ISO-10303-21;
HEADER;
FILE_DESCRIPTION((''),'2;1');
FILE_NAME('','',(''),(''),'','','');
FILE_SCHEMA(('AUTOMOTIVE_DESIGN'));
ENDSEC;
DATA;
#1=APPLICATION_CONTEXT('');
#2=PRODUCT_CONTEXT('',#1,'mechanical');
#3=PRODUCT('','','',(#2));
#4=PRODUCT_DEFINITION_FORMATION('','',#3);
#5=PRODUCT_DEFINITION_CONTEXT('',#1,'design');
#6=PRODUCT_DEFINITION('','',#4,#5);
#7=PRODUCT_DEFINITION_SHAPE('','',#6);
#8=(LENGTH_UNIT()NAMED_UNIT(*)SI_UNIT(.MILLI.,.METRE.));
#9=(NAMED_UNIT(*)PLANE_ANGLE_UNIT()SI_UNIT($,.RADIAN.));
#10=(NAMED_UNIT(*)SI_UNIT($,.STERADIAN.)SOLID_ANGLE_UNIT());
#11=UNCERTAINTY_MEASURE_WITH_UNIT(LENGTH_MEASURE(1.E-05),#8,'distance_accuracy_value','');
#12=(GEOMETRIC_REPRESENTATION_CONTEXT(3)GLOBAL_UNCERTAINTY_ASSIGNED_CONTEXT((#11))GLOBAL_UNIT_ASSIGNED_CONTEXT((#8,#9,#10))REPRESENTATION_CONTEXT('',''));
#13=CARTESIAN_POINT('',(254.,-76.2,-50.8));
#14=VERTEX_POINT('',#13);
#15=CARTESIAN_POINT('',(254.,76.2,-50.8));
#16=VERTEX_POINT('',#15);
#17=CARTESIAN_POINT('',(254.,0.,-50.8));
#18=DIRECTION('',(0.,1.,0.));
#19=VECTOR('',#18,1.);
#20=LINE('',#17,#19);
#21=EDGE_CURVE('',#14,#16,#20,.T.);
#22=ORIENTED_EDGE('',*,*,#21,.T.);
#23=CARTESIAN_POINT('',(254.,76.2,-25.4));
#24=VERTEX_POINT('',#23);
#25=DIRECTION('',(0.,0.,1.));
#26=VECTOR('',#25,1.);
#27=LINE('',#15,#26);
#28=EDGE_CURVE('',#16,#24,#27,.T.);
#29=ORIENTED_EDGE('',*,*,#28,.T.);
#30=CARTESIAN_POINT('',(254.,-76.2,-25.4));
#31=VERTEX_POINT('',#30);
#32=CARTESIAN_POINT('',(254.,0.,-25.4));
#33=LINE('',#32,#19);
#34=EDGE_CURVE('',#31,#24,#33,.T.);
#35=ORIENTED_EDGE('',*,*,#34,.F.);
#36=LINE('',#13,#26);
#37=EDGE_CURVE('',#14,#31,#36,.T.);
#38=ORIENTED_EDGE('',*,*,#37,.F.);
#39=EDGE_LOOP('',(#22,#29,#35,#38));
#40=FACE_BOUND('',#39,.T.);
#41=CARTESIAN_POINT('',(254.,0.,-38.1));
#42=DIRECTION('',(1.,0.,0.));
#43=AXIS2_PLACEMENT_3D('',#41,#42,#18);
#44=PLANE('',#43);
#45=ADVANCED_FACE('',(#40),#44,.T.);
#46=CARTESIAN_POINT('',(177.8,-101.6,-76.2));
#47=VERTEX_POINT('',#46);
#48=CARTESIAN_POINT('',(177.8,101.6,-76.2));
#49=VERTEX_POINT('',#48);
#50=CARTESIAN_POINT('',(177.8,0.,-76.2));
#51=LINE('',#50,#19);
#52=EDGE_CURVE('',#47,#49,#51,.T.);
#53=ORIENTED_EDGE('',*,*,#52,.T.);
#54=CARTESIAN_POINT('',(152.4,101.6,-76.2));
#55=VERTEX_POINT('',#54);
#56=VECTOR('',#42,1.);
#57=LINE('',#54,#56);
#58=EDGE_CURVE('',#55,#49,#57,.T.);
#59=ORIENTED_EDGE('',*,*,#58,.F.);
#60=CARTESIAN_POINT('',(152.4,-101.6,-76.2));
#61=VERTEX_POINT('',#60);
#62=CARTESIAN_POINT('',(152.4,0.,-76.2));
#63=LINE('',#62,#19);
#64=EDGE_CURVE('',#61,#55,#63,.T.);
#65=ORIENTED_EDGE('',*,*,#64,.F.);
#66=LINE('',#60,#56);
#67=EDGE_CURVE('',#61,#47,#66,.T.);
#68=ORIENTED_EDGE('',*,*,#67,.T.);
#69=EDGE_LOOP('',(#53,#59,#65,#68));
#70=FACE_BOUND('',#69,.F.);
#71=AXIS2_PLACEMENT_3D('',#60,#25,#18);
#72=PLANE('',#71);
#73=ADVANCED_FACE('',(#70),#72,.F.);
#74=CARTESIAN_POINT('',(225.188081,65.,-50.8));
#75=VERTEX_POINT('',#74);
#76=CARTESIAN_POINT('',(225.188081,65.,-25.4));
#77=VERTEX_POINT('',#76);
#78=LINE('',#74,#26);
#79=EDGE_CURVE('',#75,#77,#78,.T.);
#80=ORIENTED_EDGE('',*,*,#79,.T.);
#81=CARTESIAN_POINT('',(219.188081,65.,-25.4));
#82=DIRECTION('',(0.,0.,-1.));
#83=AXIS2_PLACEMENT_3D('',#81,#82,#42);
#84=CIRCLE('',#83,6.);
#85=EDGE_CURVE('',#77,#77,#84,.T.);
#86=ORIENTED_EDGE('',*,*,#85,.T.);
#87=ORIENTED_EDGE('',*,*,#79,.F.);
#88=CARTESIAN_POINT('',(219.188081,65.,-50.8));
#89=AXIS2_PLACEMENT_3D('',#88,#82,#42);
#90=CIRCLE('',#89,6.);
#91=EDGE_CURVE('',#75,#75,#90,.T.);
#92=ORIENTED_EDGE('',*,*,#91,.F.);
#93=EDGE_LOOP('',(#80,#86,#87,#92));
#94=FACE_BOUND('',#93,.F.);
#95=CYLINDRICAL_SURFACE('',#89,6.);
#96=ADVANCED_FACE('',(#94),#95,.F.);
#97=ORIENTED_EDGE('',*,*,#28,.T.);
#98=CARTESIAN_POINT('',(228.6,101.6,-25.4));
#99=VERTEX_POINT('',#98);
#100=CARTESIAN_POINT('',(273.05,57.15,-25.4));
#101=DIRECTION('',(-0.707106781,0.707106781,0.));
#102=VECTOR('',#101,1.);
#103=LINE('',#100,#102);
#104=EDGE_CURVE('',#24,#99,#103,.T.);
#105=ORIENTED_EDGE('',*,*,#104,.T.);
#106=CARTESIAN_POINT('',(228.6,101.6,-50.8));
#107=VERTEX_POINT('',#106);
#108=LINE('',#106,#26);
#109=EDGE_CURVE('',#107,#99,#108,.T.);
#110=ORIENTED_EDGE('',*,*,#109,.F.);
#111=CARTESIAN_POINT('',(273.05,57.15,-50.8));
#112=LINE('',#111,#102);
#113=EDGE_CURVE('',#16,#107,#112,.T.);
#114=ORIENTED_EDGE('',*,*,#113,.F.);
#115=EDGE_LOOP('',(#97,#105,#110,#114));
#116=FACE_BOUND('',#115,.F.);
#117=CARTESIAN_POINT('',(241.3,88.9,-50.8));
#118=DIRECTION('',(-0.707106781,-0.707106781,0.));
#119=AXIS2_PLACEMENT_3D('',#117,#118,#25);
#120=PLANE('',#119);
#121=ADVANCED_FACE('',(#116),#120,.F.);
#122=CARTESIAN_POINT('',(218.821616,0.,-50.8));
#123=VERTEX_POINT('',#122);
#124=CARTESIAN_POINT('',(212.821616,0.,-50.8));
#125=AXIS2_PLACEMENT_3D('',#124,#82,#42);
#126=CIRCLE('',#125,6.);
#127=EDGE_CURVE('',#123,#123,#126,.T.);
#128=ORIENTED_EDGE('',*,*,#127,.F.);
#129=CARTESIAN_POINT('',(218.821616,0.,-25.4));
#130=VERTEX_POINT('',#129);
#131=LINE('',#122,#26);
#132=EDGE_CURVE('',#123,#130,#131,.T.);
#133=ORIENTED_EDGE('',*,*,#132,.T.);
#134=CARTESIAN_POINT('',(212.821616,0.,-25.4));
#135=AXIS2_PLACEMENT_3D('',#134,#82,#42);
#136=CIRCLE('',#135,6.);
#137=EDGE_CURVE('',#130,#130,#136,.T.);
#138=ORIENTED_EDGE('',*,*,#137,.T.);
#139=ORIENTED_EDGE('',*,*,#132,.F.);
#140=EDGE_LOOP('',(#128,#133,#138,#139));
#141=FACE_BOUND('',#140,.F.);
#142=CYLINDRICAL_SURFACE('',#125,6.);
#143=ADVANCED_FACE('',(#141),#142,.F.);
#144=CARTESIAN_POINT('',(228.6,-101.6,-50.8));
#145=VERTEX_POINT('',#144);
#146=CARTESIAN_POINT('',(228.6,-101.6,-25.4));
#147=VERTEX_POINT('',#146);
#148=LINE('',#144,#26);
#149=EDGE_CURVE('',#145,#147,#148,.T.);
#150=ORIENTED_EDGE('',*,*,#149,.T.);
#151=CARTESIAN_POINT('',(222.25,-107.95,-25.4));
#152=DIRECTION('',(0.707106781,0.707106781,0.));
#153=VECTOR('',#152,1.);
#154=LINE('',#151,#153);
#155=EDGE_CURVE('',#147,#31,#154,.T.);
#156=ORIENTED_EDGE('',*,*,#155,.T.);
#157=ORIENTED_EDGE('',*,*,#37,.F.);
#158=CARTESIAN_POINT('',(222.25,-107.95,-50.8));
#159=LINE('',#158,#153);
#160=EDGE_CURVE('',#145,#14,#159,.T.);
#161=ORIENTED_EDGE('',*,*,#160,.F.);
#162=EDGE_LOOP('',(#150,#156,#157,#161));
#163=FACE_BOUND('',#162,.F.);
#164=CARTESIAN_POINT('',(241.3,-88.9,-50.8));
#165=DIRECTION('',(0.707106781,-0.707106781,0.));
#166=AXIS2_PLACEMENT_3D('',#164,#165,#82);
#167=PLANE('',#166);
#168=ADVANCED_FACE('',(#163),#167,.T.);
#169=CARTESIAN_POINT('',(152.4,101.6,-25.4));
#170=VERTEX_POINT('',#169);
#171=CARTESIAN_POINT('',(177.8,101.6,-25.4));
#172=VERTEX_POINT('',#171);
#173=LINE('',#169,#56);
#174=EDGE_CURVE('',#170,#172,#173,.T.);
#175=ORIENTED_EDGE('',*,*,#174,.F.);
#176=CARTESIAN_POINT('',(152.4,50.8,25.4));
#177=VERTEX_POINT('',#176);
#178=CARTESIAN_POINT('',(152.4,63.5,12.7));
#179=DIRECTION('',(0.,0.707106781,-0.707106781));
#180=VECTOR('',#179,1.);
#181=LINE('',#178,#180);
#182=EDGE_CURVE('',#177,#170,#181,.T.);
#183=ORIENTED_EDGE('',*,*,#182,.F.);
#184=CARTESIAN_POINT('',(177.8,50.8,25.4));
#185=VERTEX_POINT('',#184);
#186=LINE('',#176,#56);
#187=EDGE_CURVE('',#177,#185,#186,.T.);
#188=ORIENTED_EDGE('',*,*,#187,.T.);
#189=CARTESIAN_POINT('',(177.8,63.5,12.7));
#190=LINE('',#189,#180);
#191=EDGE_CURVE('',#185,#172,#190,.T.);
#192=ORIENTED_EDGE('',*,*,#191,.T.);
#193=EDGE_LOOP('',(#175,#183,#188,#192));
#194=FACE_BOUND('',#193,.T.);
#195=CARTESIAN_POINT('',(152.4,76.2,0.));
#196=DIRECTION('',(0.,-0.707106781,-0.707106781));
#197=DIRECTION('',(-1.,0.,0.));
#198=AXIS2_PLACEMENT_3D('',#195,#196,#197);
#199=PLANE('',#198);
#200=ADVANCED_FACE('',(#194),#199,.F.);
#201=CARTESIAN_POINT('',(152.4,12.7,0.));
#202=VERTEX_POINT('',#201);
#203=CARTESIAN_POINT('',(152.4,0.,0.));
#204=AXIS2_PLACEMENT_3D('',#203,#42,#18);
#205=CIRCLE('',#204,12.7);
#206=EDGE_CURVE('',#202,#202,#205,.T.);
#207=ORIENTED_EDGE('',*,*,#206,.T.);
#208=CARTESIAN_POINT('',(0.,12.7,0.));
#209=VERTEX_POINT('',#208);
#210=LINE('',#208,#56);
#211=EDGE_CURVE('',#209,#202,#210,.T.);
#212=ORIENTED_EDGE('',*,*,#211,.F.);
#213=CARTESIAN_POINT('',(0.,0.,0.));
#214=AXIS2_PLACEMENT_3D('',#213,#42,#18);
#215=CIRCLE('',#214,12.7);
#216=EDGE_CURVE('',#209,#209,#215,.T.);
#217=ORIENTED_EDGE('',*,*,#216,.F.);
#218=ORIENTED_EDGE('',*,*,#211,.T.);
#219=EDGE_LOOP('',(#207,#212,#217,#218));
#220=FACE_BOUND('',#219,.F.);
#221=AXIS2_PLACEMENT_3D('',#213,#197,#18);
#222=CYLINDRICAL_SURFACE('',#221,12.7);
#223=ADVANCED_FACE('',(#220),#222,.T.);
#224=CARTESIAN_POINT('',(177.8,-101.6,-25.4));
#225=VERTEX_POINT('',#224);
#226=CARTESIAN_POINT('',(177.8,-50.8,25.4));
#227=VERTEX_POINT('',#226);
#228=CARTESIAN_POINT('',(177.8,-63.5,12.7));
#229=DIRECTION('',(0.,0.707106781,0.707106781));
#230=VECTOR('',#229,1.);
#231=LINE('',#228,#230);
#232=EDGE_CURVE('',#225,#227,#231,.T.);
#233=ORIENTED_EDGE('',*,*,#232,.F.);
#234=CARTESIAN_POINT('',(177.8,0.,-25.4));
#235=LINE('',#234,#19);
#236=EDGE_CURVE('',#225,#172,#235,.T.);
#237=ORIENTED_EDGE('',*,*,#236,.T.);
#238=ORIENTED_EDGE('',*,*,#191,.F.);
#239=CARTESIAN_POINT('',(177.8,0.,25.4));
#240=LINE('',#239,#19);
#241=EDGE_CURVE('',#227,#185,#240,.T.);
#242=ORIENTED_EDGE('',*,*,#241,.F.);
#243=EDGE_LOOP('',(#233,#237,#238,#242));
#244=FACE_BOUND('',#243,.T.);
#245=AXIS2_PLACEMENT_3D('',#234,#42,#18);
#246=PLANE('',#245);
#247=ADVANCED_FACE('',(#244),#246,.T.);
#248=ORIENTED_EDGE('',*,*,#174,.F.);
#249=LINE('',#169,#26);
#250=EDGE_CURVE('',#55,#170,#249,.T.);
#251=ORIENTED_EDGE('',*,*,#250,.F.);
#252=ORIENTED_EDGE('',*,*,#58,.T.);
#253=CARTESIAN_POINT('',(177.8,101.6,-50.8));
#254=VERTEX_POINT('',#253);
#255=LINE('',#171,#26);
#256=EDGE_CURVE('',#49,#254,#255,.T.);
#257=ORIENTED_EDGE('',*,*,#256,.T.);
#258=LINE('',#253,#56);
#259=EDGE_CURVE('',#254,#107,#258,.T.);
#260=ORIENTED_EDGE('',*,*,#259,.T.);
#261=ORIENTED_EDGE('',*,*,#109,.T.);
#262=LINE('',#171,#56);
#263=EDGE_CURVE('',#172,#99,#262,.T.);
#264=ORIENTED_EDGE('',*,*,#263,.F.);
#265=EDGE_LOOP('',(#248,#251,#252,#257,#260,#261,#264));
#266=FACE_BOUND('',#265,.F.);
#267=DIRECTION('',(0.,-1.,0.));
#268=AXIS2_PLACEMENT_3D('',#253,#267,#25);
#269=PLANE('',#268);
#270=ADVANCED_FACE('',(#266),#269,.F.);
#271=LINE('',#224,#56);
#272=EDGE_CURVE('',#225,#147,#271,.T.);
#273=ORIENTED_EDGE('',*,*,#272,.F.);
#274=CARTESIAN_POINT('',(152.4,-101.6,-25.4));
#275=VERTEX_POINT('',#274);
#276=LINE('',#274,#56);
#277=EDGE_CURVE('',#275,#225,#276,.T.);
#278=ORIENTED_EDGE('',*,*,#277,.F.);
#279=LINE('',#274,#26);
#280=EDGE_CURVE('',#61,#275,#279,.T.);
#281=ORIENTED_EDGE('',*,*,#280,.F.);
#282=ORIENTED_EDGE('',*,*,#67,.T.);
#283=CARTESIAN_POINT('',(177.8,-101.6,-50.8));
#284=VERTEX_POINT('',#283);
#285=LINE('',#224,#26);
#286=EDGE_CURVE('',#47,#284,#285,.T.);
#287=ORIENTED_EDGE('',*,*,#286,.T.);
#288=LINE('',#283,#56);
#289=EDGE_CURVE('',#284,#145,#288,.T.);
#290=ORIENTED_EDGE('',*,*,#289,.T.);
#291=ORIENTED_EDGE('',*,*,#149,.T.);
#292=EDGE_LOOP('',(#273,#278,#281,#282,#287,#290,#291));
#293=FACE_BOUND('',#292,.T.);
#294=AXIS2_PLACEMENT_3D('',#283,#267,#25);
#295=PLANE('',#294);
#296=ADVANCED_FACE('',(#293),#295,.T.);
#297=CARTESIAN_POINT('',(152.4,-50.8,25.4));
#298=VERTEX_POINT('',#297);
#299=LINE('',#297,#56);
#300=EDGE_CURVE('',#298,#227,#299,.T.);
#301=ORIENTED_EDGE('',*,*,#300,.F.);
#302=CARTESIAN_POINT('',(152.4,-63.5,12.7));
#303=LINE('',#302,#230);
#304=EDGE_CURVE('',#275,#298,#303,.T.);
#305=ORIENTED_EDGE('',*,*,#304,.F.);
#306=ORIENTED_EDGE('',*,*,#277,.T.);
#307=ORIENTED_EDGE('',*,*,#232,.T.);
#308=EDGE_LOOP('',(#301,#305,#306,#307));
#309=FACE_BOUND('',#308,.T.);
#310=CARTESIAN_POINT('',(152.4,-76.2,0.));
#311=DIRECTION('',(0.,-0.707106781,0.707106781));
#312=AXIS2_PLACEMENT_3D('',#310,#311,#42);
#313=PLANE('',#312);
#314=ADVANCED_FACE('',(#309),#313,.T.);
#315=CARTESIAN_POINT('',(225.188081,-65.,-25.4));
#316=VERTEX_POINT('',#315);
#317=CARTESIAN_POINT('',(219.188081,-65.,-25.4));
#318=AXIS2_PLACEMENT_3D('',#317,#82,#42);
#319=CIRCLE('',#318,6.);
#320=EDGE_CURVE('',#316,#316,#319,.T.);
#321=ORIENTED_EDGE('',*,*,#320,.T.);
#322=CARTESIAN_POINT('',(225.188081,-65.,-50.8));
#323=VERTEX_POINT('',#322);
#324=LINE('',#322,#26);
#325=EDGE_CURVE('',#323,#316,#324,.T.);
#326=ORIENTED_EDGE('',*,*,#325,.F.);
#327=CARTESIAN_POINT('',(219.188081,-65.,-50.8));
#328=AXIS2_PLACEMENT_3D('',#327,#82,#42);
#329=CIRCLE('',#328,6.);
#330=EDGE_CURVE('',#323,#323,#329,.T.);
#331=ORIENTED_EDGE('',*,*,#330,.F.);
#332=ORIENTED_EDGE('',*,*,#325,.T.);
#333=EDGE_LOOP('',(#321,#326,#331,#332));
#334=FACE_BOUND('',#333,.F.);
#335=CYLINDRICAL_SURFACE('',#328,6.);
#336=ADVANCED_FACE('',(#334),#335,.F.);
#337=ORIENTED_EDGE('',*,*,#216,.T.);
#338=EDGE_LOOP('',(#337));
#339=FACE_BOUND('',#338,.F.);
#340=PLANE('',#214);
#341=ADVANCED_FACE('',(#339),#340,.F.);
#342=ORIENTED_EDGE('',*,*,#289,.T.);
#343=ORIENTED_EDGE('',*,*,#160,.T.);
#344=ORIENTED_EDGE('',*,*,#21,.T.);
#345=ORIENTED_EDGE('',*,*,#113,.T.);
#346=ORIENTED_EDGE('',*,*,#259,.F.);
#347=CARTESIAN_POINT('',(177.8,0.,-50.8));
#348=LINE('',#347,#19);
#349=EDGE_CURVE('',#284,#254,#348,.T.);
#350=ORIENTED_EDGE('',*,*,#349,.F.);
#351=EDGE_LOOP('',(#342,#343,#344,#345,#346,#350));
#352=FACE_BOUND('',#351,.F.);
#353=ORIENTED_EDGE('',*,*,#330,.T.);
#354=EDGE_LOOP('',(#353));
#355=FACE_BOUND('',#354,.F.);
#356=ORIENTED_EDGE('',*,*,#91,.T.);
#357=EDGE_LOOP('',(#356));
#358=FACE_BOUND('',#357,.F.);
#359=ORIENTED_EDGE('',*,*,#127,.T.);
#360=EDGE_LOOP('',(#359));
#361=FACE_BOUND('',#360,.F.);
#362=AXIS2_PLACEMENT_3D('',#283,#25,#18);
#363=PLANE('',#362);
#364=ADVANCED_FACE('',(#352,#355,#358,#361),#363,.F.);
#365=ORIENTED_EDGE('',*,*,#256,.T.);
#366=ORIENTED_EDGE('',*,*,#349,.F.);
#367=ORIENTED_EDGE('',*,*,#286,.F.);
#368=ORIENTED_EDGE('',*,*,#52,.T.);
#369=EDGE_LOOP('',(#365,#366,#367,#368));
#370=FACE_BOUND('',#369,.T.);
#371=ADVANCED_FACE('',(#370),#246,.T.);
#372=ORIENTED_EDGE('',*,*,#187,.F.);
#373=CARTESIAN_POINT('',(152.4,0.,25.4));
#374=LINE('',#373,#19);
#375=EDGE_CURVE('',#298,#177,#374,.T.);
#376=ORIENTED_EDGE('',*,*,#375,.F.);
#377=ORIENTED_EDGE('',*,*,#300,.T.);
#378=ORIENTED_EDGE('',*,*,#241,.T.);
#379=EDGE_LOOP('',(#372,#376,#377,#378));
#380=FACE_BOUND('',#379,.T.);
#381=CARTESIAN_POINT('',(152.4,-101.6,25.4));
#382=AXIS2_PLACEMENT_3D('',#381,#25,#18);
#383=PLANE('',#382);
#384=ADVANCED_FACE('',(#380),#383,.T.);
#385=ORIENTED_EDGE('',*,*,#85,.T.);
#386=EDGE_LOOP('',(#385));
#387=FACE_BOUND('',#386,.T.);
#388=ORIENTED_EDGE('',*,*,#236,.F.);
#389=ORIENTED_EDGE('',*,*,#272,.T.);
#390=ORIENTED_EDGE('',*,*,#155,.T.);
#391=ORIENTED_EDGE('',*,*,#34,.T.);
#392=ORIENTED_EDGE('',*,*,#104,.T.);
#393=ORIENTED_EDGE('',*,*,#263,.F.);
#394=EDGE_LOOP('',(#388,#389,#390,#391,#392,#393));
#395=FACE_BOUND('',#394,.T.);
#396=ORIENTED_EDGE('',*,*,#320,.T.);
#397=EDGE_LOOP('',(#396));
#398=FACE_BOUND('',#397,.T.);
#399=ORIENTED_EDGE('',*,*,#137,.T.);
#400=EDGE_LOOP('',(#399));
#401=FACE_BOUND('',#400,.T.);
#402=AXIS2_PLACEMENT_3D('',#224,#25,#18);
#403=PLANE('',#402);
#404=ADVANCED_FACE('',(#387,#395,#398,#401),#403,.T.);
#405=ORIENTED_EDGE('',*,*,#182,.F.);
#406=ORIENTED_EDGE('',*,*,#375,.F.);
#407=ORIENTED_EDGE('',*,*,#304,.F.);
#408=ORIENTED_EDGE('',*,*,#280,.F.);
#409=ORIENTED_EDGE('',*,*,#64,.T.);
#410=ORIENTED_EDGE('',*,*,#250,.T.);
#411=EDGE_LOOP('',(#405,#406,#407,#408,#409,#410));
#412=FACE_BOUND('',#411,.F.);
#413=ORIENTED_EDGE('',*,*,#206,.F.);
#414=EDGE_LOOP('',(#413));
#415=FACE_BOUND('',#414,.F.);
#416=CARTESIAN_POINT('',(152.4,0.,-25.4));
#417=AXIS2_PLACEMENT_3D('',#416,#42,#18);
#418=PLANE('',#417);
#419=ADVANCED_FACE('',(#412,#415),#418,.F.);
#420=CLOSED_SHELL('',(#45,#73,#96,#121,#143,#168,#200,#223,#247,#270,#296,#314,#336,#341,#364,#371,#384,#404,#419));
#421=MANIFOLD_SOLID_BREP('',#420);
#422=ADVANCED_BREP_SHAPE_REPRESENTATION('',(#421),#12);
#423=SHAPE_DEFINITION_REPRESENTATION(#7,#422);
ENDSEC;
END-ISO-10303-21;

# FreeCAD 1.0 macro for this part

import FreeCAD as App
import Part
import Sketcher

V = App.Vector
Q = App.Units.Quantity


def edges_at(feature, points):
    """Names of the edges that pass closest to the given points."""
    edges = feature.Shape.Edges
    near = lambda p: min(range(len(edges)), key=lambda i: edges[i].distToShape(Part.Vertex(*p))[0])
    return sorted({f"Edge{near(p) + 1}" for p in points})

doc = App.newDocument("Part")
body = doc.addObject("PartDesign::Body", "Body")

sketch1 = body.newObject("Sketcher::SketchObject", "Sketch")
sketch1.AttachmentSupport = (doc.getObject("YZ_Plane"), [""])
sketch1.MapMode = "FlatFace"
sketch1.addGeometry(Part.Circle(V(0, 0, 0), V(0, 0, 1), 13), False)
sketch1.addConstraint([
    Sketcher.Constraint("Coincident", 0, 3, -1, 1),
    Sketcher.Constraint("Diameter", 0, Q("1 in")),
])
pad1 = body.newObject("PartDesign::Pad", "Pad")
pad1.Profile = sketch1
pad1.Length = Q("6 in")

sketch2 = body.newObject("Sketcher::SketchObject", "Sketch001")
sketch2.AttachmentSupport = (doc.getObject("YZ_Plane"), [""])
sketch2.MapMode = "FlatFace"
sketch2.AttachmentOffset = App.Placement(V(0, 0, 6 * 25.4), App.Rotation())
sketch2.addGeometry([
    Part.LineSegment(V(-102, 25, 0), V(-102, -76, 0)),
    Part.LineSegment(V(-102, -76, 0), V(102, -76, 0)),
    Part.LineSegment(V(102, -76, 0), V(102, 25, 0)),
    Part.LineSegment(V(102, 25, 0), V(-102, 25, 0)),
], False)
sketch2.addConstraint([
    Sketcher.Constraint("Coincident", 0, 2, 1, 1),
    Sketcher.Constraint("Coincident", 1, 2, 2, 1),
    Sketcher.Constraint("Coincident", 2, 2, 3, 1),
    Sketcher.Constraint("Coincident", 3, 2, 0, 1),
    Sketcher.Constraint("Vertical", 0),
    Sketcher.Constraint("Horizontal", 1),
    Sketcher.Constraint("Vertical", 2),
    Sketcher.Constraint("Horizontal", 3),
    Sketcher.Constraint("DistanceX", 1, 1, 1, 2, Q("8 in")),
    Sketcher.Constraint("DistanceY", 0, 2, 0, 1, Q("4 in")),
    Sketcher.Constraint("DistanceX", 0, 2, -1, 1, Q("4 in")),
    Sketcher.Constraint("DistanceY", 0, 2, -1, 1, Q("3 in")),
])
pad2 = body.newObject("PartDesign::Pad", "Pad001")
pad2.Profile = sketch2
pad2.Length = Q("1 in")
doc.recompute()

chamfer = body.newObject("PartDesign::Chamfer", "Chamfer")
chamfer.Base = (pad2, edges_at(pad2, [(165.1, 101.6, 25.4), (165.1, -101.6, 25.4)]))
chamfer.Size = Q("2 in")

sketch3 = body.newObject("Sketcher::SketchObject", "Sketch002")
sketch3.AttachmentSupport = (doc.getObject("YZ_Plane"), [""])
sketch3.MapMode = "FlatFace"
sketch3.AttachmentOffset = App.Placement(V(0, 0, 7 * 25.4), App.Rotation())
sketch3.addGeometry([
    Part.LineSegment(V(-102, -25, 0), V(-102, -51, 0)),
    Part.LineSegment(V(-102, -51, 0), V(102, -51, 0)),
    Part.LineSegment(V(102, -51, 0), V(102, -25, 0)),
    Part.LineSegment(V(102, -25, 0), V(-102, -25, 0)),
], False)
sketch3.addConstraint([
    Sketcher.Constraint("Coincident", 0, 2, 1, 1),
    Sketcher.Constraint("Coincident", 1, 2, 2, 1),
    Sketcher.Constraint("Coincident", 2, 2, 3, 1),
    Sketcher.Constraint("Coincident", 3, 2, 0, 1),
    Sketcher.Constraint("Vertical", 0),
    Sketcher.Constraint("Horizontal", 1),
    Sketcher.Constraint("Vertical", 2),
    Sketcher.Constraint("Horizontal", 3),
    Sketcher.Constraint("DistanceX", 1, 1, 1, 2, Q("8 in")),
    Sketcher.Constraint("DistanceY", 0, 2, 0, 1, Q("1 in")),
    Sketcher.Constraint("DistanceX", 0, 2, -1, 1, Q("4 in")),
    Sketcher.Constraint("DistanceY", 0, 2, -1, 1, Q("2 in")),
])
pad3 = body.newObject("PartDesign::Pad", "Pad002")
pad3.Profile = sketch3
pad3.Length = Q("3 in")
doc.recompute()

chamfer2 = body.newObject("PartDesign::Chamfer", "Chamfer001")
chamfer2.Base = (pad3, edges_at(pad3, [(254, -101.6, -38.1), (254, 101.6, -38.1)]))
chamfer2.Size = Q("1 in")

sketch4 = body.newObject("Sketcher::SketchObject", "Sketch003")
sketch4.AttachmentSupport = (doc.getObject("XY_Plane"), [""])
sketch4.MapMode = "FlatFace"
sketch4.AttachmentOffset = App.Placement(V(0, 0, -2 * 25.4), App.Rotation())
sketch4.addGeometry([
    Part.Circle(V(219, -65, 0), V(0, 0, 1), 6),
    Part.Circle(V(213, 0, 0), V(0, 0, 1), 6),
    Part.Circle(V(219, 65, 0), V(0, 0, 1), 6),
], False)
sketch4.addConstraint([
    Sketcher.Constraint("Equal", 0, 1),
    Sketcher.Constraint("Equal", 1, 2),
    Sketcher.Constraint("Symmetric", 0, 3, 2, 3, -1),
    Sketcher.Constraint("PointOnObject", 1, 3, -1),
    Sketcher.Constraint("Diameter", 0, Q("12 mm")),
    Sketcher.Constraint("DistanceY", 0, 3, -1, 1, Q("65 mm")),
    Sketcher.Constraint("DistanceX", -1, 1, 0, 3, Q("219.188081 mm")),
    Sketcher.Constraint("DistanceX", -1, 1, 1, 3, Q("212.821616 mm")),
])
pocket1 = body.newObject("PartDesign::Pocket", "Pocket")
pocket1.Profile = sketch4
pocket1.Type = "ThroughAll"
pocket1.Reversed = True

doc.recompute()
